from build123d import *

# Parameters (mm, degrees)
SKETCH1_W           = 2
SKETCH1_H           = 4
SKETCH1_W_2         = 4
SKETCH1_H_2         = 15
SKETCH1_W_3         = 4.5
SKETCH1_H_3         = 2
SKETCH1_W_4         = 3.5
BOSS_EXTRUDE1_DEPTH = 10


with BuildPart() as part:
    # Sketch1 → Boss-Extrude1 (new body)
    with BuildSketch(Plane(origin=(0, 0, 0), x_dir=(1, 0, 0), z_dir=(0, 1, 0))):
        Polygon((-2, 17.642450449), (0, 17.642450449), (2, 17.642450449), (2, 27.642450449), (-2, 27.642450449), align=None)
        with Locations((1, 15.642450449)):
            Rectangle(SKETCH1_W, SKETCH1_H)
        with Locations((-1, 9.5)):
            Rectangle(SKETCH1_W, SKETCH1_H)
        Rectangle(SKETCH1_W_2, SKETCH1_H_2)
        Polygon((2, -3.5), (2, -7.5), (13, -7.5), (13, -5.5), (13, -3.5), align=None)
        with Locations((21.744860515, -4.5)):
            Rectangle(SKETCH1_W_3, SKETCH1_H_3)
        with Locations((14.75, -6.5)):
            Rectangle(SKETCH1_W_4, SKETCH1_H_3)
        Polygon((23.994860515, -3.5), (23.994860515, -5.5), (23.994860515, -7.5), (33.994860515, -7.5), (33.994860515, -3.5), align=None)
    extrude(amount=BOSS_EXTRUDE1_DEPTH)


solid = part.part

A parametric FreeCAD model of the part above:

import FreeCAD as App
import Part
import Sketcher
from FreeCAD import Vector


def add_polygon(sketch, points):
    """Adds a closed chain of lines whose ends are joined by coincident constraints."""
    first, n = sketch.GeometryCount, len(points)
    for a, b in zip(points, points[1:] + points[:1]):
        sketch.addGeometry(Part.LineSegment(App.Vector(*a, 0), App.Vector(*b, 0)), False)
    for i in range(n):
        sketch.addConstraint(Sketcher.Constraint("Coincident", first + i, 2, first + (i + 1) % n, 1))

doc = App.newDocument("Part")
body = doc.addObject("PartDesign::Body", "Body")
body.AllowCompound = True

# Sketch on XZ plane
sketch1 = body.newObject("Sketcher::SketchObject", "Sketch")
sketch1.AttachmentSupport = (doc.getObject("XZ_Plane"), [""])
sketch1.MapMode = "FlatFace"
add_polygon(sketch1, [(-2, -17.6), (0, -17.6), (0, -13.6), (2, -13.6), (2, -27.6), (-2, -27.6)])  # lines 0-5
add_polygon(sketch1, [(-2, -11.5), (-2, 7.5), (16.5, 7.5), (16.5, 5.5), (13, 5.5), (13, 3.5), (2, 3.5), (2, -7.5), (0, -7.5), (0, -11.5)])  # lines 6-15
add_polygon(sketch1, [(19.5, 3.5), (19.5, 5.5), (24, 5.5), (24, 7.5), (34, 7.5), (34, 3.5)])  # lines 16-21
sketch1.addConstraint([
    Sketcher.Constraint("Horizontal", 0),
    Sketcher.Constraint("Vertical", 1),
    Sketcher.Constraint("Horizontal", 2),
    Sketcher.Constraint("Vertical", 3),
    Sketcher.Constraint("Horizontal", 4),
    Sketcher.Constraint("Vertical", 5),
    Sketcher.Constraint("Vertical", 6),
    Sketcher.Constraint("Horizontal", 7),
    Sketcher.Constraint("Vertical", 8),
    Sketcher.Constraint("Horizontal", 9),
    Sketcher.Constraint("Vertical", 10),
    Sketcher.Constraint("Horizontal", 11),
    Sketcher.Constraint("Vertical", 12),
    Sketcher.Constraint("Horizontal", 13),
    Sketcher.Constraint("Vertical", 14),
    Sketcher.Constraint("Horizontal", 15),
    Sketcher.Constraint("Vertical", 16),
    Sketcher.Constraint("Horizontal", 17),
    Sketcher.Constraint("Vertical", 18),
    Sketcher.Constraint("Horizontal", 19),
    Sketcher.Constraint("Vertical", 20),
    Sketcher.Constraint("Horizontal", 21),
    Sketcher.Constraint("Symmetric", 6, 2, 12, 2, -1, 1),
    Sketcher.Constraint("PointOnObject", 0, 2, -2),
    Sketcher.Constraint("PointOnObject", 13, 2, -2),
    Sketcher.Constraint("Horizontal", 9, 2, 16, 2),
    Sketcher.Constraint("Horizontal", 7, 2, 18, 2),
    Sketcher.Constraint("Horizontal", 11, 2, 20, 2),
    Sketcher.Constraint("Vertical", 5, 2, 6, 2),
    Sketcher.Constraint("Vertical", 3, 2, 11, 2),
    Sketcher.Constraint("Equal", 4, 1),
    Sketcher.Constraint("Equal", 19, 5),
    Sketcher.Constraint("Equal", 15, 8),
    Sketcher.Constraint("Equal", 8, 10),
    Sketcher.Constraint("Equal", 11, 12),
    Sketcher.Constraint("Equal", 1, 14),
    Sketcher.Constraint("DistanceX", 0, 1, 0, 2, 2.0),
    Sketcher.Constraint("DistanceX", 11, 2, 11, 1, 11.0),
    Sketcher.Constraint("DistanceX", 19, 1, 19, 2, 10.0),
    Sketcher.Constraint("DistanceX", 7, 1, 7, 2, 18.5),
    Sketcher.Constraint("DistanceX", 17, 1, 17, 2, 4.5),
    Sketcher.Constraint("DistanceY", 0, 2, -1, 1, 17.64245),
    Sketcher.Constraint("DistanceX", -1, 1, 16, 2, 19.494861),
])
pad1 = body.newObject("PartDesign::Pad", "Pad")
pad1.Profile = sketch1
pad1.Length = 10
pad1.Reversed = True

doc.recompute()
